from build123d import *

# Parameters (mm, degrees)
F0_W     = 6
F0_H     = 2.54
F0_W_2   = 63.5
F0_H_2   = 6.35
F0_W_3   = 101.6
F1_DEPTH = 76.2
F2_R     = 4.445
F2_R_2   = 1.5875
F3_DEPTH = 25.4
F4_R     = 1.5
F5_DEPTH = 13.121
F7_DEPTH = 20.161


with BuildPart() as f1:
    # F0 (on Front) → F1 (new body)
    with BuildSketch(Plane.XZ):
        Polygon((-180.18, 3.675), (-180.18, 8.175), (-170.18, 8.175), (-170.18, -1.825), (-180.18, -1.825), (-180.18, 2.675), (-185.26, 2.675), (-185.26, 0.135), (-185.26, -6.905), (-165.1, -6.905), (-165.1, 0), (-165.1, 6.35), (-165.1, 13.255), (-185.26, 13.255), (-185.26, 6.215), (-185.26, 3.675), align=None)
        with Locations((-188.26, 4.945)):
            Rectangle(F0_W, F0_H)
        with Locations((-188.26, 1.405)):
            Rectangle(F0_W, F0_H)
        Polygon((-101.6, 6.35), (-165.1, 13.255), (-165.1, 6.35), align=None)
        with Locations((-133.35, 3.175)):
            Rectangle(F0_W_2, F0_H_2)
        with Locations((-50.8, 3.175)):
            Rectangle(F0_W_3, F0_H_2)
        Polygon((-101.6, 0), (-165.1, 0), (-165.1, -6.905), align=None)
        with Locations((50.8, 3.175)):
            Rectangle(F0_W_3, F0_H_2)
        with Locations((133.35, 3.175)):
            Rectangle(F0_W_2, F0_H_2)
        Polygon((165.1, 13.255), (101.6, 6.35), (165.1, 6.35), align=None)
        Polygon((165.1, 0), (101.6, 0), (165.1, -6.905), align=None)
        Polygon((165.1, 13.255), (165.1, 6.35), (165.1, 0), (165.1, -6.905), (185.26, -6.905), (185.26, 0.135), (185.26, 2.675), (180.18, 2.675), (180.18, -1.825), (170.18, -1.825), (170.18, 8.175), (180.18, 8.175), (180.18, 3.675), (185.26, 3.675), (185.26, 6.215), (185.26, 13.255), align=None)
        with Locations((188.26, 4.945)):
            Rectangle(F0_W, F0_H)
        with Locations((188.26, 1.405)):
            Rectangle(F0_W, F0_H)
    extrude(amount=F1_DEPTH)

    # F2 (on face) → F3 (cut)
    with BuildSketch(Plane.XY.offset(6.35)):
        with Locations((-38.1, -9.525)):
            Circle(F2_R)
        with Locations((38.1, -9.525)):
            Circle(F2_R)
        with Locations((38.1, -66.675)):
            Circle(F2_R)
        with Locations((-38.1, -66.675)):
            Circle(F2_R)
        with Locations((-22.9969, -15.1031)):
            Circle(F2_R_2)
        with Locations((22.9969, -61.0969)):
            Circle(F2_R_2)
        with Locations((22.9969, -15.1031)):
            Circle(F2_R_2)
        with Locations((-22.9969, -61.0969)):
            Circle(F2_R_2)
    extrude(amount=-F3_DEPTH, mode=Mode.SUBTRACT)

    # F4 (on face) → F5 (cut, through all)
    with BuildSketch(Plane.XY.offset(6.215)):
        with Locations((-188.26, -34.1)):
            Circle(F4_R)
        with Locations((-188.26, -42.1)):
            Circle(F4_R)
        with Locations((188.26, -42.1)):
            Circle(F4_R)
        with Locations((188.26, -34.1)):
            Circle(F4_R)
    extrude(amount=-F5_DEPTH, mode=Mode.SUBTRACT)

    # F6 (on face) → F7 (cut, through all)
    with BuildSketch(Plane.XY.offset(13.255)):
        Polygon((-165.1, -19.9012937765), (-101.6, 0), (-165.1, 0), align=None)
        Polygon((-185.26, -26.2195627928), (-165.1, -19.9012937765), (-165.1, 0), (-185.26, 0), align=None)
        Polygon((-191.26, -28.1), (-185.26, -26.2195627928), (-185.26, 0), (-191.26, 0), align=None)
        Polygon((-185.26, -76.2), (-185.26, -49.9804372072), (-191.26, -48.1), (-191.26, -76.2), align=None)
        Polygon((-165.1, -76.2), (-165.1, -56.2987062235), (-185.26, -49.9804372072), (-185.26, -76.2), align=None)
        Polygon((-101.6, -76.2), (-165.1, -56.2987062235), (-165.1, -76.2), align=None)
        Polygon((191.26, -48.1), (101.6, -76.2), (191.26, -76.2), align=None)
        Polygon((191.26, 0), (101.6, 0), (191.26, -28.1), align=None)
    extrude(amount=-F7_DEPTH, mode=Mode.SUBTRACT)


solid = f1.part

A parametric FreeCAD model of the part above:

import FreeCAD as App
import Part
import Sketcher
from FreeCAD import Vector
Q = App.Units.Quantity


def add_polygon(sketch, points):
    """Adds a closed chain of lines whose ends are joined by coincident constraints."""
    first, n = sketch.GeometryCount, len(points)
    for a, b in zip(points, points[1:] + points[:1]):
        sketch.addGeometry(Part.LineSegment(App.Vector(*a, 0), App.Vector(*b, 0)), False)
    for i in range(n):
        sketch.addConstraint(Sketcher.Constraint("Coincident", first + i, 2, first + (i + 1) % n, 1))

doc = App.newDocument("Part")
params = doc.addObject("Spreadsheet::Sheet", "Params")
for row, (alias, value) in enumerate([
    ("sketch1_width", "8 in"),
    ("sketch1_height", "0.1 in"),
    ("pad1_length", "3 in"),
    ("sketch2_diameter", "0.35 in"),
    ("sketch2_diameter2", "0.125 in"),
    ("pocket1_length", "1 in"),
], start=1):
    params.set(f"A{row}", alias)
    params.set(f"B{row}", "=" + value)
    params.setAlias(f"B{row}", alias)

body = doc.addObject("PartDesign::Body", "Body")

# Sketch on XZ plane
sketch1 = body.newObject("Sketcher::SketchObject", "Sketch")
sketch1.AttachmentSupport = (doc.getObject("XZ_Plane"), [""])
sketch1.MapMode = "FlatFace"
add_polygon(sketch1, [(-180.2, 3.7), (-180.2, 8.2), (-170.2, 8.2), (-170.2, -1.8), (-180.2, -1.8), (-180.2, 2.7), (-191.3, 2.7), (-191.3, 0.1), (-185.3, 0.1), (-185.3, -6.9), (-165.1, -6.9), (-101.6, 0), (101.6, 0), (165.1, -6.9), (185.3, -6.9), (185.3, 0.1), (191.3, 0.1), (191.3, 2.7), (180.2, 2.7), (180.2, -1.8), (170.2, -1.8), (170.2, 8.2), (180.2, 8.2), (180.2, 3.7), (191.3, 3.7), (191.3, 6.2), (185.3, 6.2), (185.3, 13.3), (165.1, 13.3), (101.6, 6.3), (-101.6, 6.3), (-165.1, 13.3), (-185.3, 13.3), (-185.3, 6.2), (-191.3, 6.2), (-191.3, 3.7)])  # lines 0-35
sketch1.addConstraint([
    Sketcher.Constraint("Vertical", 0),
    Sketcher.Constraint("Horizontal", 1),
    Sketcher.Constraint("Vertical", 2),
    Sketcher.Constraint("Horizontal", 3),
    Sketcher.Constraint("Vertical", 4),
    Sketcher.Constraint("Horizontal", 5),
    Sketcher.Constraint("Vertical", 6),
    Sketcher.Constraint("Horizontal", 7),
    Sketcher.Constraint("Vertical", 8),
    Sketcher.Constraint("Horizontal", 9),
    Sketcher.Constraint("Horizontal", 11),
    Sketcher.Constraint("Horizontal", 13),
    Sketcher.Constraint("Vertical", 14),
    Sketcher.Constraint("Horizontal", 15),
    Sketcher.Constraint("Vertical", 16),
    Sketcher.Constraint("Horizontal", 17),
    Sketcher.Constraint("Vertical", 18),
    Sketcher.Constraint("Horizontal", 19),
    Sketcher.Constraint("Vertical", 20),
    Sketcher.Constraint("Horizontal", 21),
    Sketcher.Constraint("Vertical", 22),
    Sketcher.Constraint("Horizontal", 23),
    Sketcher.Constraint("Vertical", 24),
    Sketcher.Constraint("Horizontal", 25),
    Sketcher.Constraint("Vertical", 26),
    Sketcher.Constraint("Horizontal", 27),
    Sketcher.Constraint("Horizontal", 29),
    Sketcher.Constraint("Horizontal", 31),
    Sketcher.Constraint("Vertical", 32),
    Sketcher.Constraint("Horizontal", 33),
    Sketcher.Constraint("Vertical", 34),
    Sketcher.Constraint("Horizontal", 35),
    Sketcher.Constraint("Symmetric", 10, 2, 11, 2, -1, 1),
    Sketcher.Constraint("Symmetric", 9, 2, 12, 2, -2),
    Sketcher.Constraint("Symmetric", 7, 2, 14, 2, -2),
    Sketcher.Constraint("Symmetric", 5, 2, 16, 2, -2),
    Sketcher.Constraint("Symmetric", 3, 2, 18, 2, -2),
    Sketcher.Constraint("Symmetric", 1, 2, 20, 2, -2),
    Sketcher.Constraint("Symmetric", 27, 2, 30, 2, -2),
    Sketcher.Constraint("Symmetric", 25, 2, 32, 2, -2),
    Sketcher.Constraint("Symmetric", 23, 2, 34, 2, -2),
    Sketcher.Constraint("Parallel", 10, 28),
    Sketcher.Constraint("Parallel", 12, 30),
    Sketcher.Constraint("Vertical", 0, 2, 3, 2),
    Sketcher.Constraint("Vertical", 18, 2, 21, 2),
    Sketcher.Constraint("Vertical", 16, 2, 23, 2),
    Sketcher.Constraint("Vertical", 14, 2, 25, 2),
    Sketcher.Constraint("Vertical", 12, 2, 27, 2),
    Sketcher.Constraint("Vertical", 11, 2, 28, 2),
    Sketcher.Constraint("Equal", 21, 2),
    Sketcher.Constraint("Equal", 0, 4),
    Sketcher.Constraint("Equal", 16, 24),
    Sketcher.Constraint("Equal", 14, 26),
    Sketcher.Constraint("DistanceX", 11, 1, 11, 2, Q("8 in")),
    Sketcher.Constraint("DistanceY", 6, 2, 6, 1, Q("0.1 in")),
    Sketcher.Constraint("DistanceX", 9, 2, 12, 2, Q("13 in")),
    Sketcher.Constraint("DistanceX", 1, 2, -1, 1, Q("6.7 in")),
    Sketcher.Constraint("DistanceX", 7, 2, 3, 2, Q("0.2 in")),
    Sketcher.Constraint("DistanceY", 8, 2, 3, 2, Q("0.2 in")),
    Sketcher.Constraint("DistanceY", -1, 1, 28, 2, Q("0.25 in")),
    Sketcher.Constraint("DistanceX", 1, 1, 1, 2, Q("10 mm")),
    Sketcher.Constraint("DistanceX", 5, 2, 5, 1, Q("11.08 mm")),
    Sketcher.Constraint("DistanceY", 0, 1, 0, 2, Q("4.5 mm")),
])
sketch1.setExpression("Constraints[89]", "Params.sketch1_width")
sketch1.setExpression("Constraints[90]", "Params.sketch1_height")
pad1 = body.newObject("PartDesign::Pad", "Pad")
pad1.Profile = sketch1
pad1.setExpression("Length", "Params.pad1_length")

# Sketch on XY plane
sketch2 = body.newObject("Sketcher::SketchObject", "Sketch001")
sketch2.AttachmentSupport = (doc.getObject("XY_Plane"), [""])
sketch2.MapMode = "FlatFace"
sketch2.AttachmentOffset = App.Placement(Vector(0, 0, 0.25 * 25.4), App.Rotation())
sketch2.addGeometry([
    Part.Circle(Vector(-38.1, -9.5, 0), Vector(0, 0, 1), 4.4),  # 0
    Part.Circle(Vector(38.1, -9.5, 0), Vector(0, 0, 1), 4.4),  # 1
    Part.Circle(Vector(38.1, -66.7, 0), Vector(0, 0, 1), 4.4),  # 2
    Part.Circle(Vector(-38.1, -66.7, 0), Vector(0, 0, 1), 4.4),  # 3
    Part.Circle(Vector(-23, -15.1, 0), Vector(0, 0, 1), 1.6),  # 4
    Part.Circle(Vector(23, -61.1, 0), Vector(0, 0, 1), 1.6),  # 5
    Part.Circle(Vector(23, -15.1, 0), Vector(0, 0, 1), 1.6),  # 6
    Part.Circle(Vector(-23, -61.1, 0), Vector(0, 0, 1), 1.6),  # 7
], False)
sketch2.addConstraint([
    Sketcher.Constraint("Equal", 0, 1),
    Sketcher.Constraint("Equal", 1, 2),
    Sketcher.Constraint("Equal", 2, 3),
    Sketcher.Constraint("Equal", 4, 5),
    Sketcher.Constraint("Equal", 5, 6),
    Sketcher.Constraint("Equal", 6, 7),
    Sketcher.Constraint("Symmetric", 0, 3, 1, 3, -2),
    Sketcher.Constraint("Symmetric", 2, 3, 3, 3, -2),
    Sketcher.Constraint("Symmetric", 4, 3, 6, 3, -2),
    Sketcher.Constraint("Symmetric", 5, 3, 7, 3, -2),
    Sketcher.Constraint("Vertical", 1, 3, 2, 3),
    Sketcher.Constraint("Vertical", 5, 3, 6, 3),
    Sketcher.Constraint("Diameter", 0, Q("0.35 in")),
    Sketcher.Constraint("Diameter", 4, Q("0.125 in")),
    Sketcher.Constraint("DistanceX", 0, 3, 1, 3, Q("3 in")),
    Sketcher.Constraint("DistanceY", 2, 3, 1, 3, Q("2.25 in")),
    Sketcher.Constraint("DistanceY", 0, 3, -1, 1, Q("0.375 in")),
    Sketcher.Constraint("DistanceX", 4, 3, -1, 1, Q("22.9969 mm")),
    Sketcher.Constraint("DistanceY", 4, 3, -1, 1, Q("15.1031 mm")),
    Sketcher.Constraint("DistanceY", 5, 3, -1, 1, Q("61.0969 mm")),
])
sketch2.setExpression("Constraints[12]", "Params.sketch2_diameter")
sketch2.setExpression("Constraints[13]", "Params.sketch2_diameter2")
pocket1 = body.newObject("PartDesign::Pocket", "Pocket")
pocket1.Profile = sketch2
pocket1.setExpression("Length", "Params.pocket1_length")

# Sketch on XY plane
sketch3 = body.newObject("Sketcher::SketchObject", "Sketch002")
sketch3.AttachmentSupport = (doc.getObject("XY_Plane"), [""])
sketch3.MapMode = "FlatFace"
sketch3.AttachmentOffset = App.Placement(Vector(0, 0, 6.215), App.Rotation())
sketch3.addGeometry([
    Part.Circle(Vector(-188.3, -34.1, 0), Vector(0, 0, 1), 1.5),
    Part.Circle(Vector(-188.3, -42.1, 0), Vector(0, 0, 1), 1.5),
    Part.Circle(Vector(188.3, -42.1, 0), Vector(0, 0, 1), 1.5),
    Part.Circle(Vector(188.3, -34.1, 0), Vector(0, 0, 1), 1.5),
], False)
sketch3.addConstraint([
    Sketcher.Constraint("Equal", 0, 1),
    Sketcher.Constraint("Equal", 1, 2),
    Sketcher.Constraint("Equal", 2, 3),
    Sketcher.Constraint("Symmetric", 1, 3, 2, 3, -2),
    Sketcher.Constraint("Symmetric", 0, 3, 3, 3, -2),
    Sketcher.Constraint("Vertical", 0, 3, 1, 3),
    Sketcher.Constraint("Diameter", 0, Q("3 mm")),
    Sketcher.Constraint("DistanceX", 0, 3, -1, 1, Q("188.26 mm")),
    Sketcher.Constraint("DistanceY", 0, 3, -1, 1, Q("34.1 mm")),
    Sketcher.Constraint("DistanceY", 1, 3, -1, 1, Q("42.1 mm")),
])
pocket2 = body.newObject("PartDesign::Pocket", "Pocket001")
pocket2.Profile = sketch3
pocket2.Type = "ThroughAll"

# Sketch on XY plane
sketch4 = body.newObject("Sketcher::SketchObject", "Sketch003")
sketch4.AttachmentSupport = (doc.getObject("XY_Plane"), [""])
sketch4.MapMode = "FlatFace"
sketch4.AttachmentOffset = App.Placement(Vector(0, 0, 13.255), App.Rotation())
add_polygon(sketch4, [(-102, 0), (-191, 0), (-191, -28), (-185, -26)])  # lines 0-3
add_polygon(sketch4, [(-185, -50), (-191, -48), (-191, -76), (-102, -76)])  # lines 4-7
add_polygon(sketch4, [(191, -48), (102, -76), (191, -76)])  # lines 8-10
add_polygon(sketch4, [(191, 0), (102, 0), (191, -28)])  # lines 11-13
sketch4.addConstraint([
    Sketcher.Constraint("Horizontal", 0),
    Sketcher.Constraint("Vertical", 1),
    Sketcher.Constraint("Vertical", 5),
    Sketcher.Constraint("Horizontal", 6),
    Sketcher.Constraint("Horizontal", 9),
    Sketcher.Constraint("Vertical", 10),
    Sketcher.Constraint("Horizontal", 11),
    Sketcher.Constraint("Vertical", 13),
    Sketcher.Constraint("Symmetric", 3, 2, 11, 2, -1, 1),
    Sketcher.Constraint("Symmetric", 6, 2, 8, 2, -2),
    Sketcher.Constraint("Symmetric", 4, 2, 10, 2, -2),
    Sketcher.Constraint("Symmetric", 1, 2, 12, 2, -2),
    Sketcher.Constraint("PointOnObject", 0, 2, -1),
    Sketcher.Constraint("Parallel", 2, 3),
    Sketcher.Constraint("Parallel", 4, 7),
    Sketcher.Constraint("Parallel", 3, 8),
    Sketcher.Constraint("Vertical", 1, 2, 4, 2),
    Sketcher.Constraint("Vertical", 3, 2, 6, 2),
    Sketcher.Constraint("Vertical", 2, 2, 7, 2),
    Sketcher.Constraint("DistanceX", 3, 2, -1, 1, Q("4 in")),
    Sketcher.Constraint("DistanceY", 5, 2, -1, 1, Q("3 in")),
    Sketcher.Constraint("DistanceX", 0, 2, 0, 1, Q("89.66 mm")),
    Sketcher.Constraint("DistanceY", 1, 2, 1, 1, Q("28.1 mm")),
    Sketcher.Constraint("DistanceX", 2, 2, -1, 1, Q("185.26 mm")),
])
pocket3 = body.newObject("PartDesign::Pocket", "Pocket002")
pocket3.Profile = sketch4
pocket3.Type = "ThroughAll"

doc.recompute()
